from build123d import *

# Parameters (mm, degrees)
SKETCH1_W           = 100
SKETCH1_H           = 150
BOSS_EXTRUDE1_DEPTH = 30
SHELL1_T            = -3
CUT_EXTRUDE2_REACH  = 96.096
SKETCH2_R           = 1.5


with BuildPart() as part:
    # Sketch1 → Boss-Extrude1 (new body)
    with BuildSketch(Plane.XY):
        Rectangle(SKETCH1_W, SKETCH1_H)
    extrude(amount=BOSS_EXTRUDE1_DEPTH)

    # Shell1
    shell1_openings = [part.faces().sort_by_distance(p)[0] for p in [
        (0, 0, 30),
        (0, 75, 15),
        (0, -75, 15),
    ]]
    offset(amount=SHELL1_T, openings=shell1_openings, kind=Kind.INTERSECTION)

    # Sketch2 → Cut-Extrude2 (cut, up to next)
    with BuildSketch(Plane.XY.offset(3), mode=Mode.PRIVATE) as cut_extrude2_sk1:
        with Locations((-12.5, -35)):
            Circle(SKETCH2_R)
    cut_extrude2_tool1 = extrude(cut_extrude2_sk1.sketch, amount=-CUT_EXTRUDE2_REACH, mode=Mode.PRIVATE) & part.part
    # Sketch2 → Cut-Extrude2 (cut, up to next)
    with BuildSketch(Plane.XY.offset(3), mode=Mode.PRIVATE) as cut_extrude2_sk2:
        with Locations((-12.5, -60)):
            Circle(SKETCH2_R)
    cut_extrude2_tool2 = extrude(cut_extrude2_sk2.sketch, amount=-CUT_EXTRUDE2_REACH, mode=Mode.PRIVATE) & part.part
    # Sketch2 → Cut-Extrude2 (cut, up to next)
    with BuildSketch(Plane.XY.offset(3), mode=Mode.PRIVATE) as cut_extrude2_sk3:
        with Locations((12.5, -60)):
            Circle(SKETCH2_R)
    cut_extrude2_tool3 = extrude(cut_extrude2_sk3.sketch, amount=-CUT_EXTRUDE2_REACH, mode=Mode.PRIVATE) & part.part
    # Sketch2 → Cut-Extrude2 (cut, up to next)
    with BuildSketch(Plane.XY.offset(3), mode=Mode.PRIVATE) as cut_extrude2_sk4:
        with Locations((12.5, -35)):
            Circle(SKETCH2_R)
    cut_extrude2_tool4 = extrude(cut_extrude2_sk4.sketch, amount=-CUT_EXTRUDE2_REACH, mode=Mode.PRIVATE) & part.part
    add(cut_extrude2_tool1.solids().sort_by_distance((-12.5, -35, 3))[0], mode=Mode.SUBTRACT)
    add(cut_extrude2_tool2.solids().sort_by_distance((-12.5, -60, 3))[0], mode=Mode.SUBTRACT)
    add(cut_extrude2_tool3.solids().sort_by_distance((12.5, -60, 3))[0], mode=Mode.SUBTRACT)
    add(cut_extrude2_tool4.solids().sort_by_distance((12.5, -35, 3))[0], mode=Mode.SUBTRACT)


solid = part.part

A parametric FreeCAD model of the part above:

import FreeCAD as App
import Part
import Sketcher


def faces_at(feature, points):
    """Names of the faces that lie closest to the given points."""
    faces = feature.Shape.Faces
    near = lambda p: min(range(len(faces)), key=lambda i: faces[i].distToShape(Part.Vertex(*p))[0])
    return sorted({f"Face{near(p) + 1}" for p in points})


def add_polygon(sketch, points):
    """Adds a closed chain of lines whose ends are joined by coincident constraints."""
    first, n = sketch.GeometryCount, len(points)
    for a, b in zip(points, points[1:] + points[:1]):
        sketch.addGeometry(Part.LineSegment(App.Vector(*a, 0), App.Vector(*b, 0)), False)
    for i in range(n):
        sketch.addConstraint(Sketcher.Constraint("Coincident", first + i, 2, first + (i + 1) % n, 1))

doc = App.newDocument("Part")
body = doc.addObject("PartDesign::Body", "Body")

sketch1 = body.newObject("Sketcher::SketchObject", "Sketch")
sketch1.AttachmentSupport = (doc.getObject("XY_Plane"), [""])
sketch1.MapMode = "FlatFace"
add_polygon(sketch1, [(-50, 75), (-50, -75), (50, -75), (50, 75)])
sketch1.addConstraint([
    Sketcher.Constraint("Vertical", 0),
    Sketcher.Constraint("Horizontal", 1),
    Sketcher.Constraint("Vertical", 2),
    Sketcher.Constraint("Horizontal", 3),
    Sketcher.Constraint("Symmetric", 0, 2, 2, 2, -1, 1),
    Sketcher.Constraint("DistanceX", 1, 1, 1, 2, 100.0),
    Sketcher.Constraint("DistanceY", 0, 2, 0, 1, 150.0),
])
pad1 = body.newObject("PartDesign::Pad", "Pad")
pad1.Profile = sketch1
pad1.Length = 30
doc.recompute()

thickness = body.newObject("PartDesign::Thickness", "Thickness")
thickness.Base = (pad1, faces_at(pad1, [(0, 0, 30), (0, 75, 15), (0, -75, 15)]))
thickness.Value = 3
thickness.Reversed = True
thickness.Join = "Intersection"

sketch2 = body.newObject("Sketcher::SketchObject", "Sketch001")
sketch2.AttachmentSupport = (doc.getObject("XY_Plane"), [""])
sketch2.MapMode = "FlatFace"
sketch2.AttachmentOffset = App.Placement(App.Vector(0, 0, 3), App.Rotation())
sketch2.addGeometry(Part.Circle(App.Vector(-12.5, -35, 0), App.Vector(0, 0, 1), 1.5), False)
sketch2.addConstraint([
    Sketcher.Constraint("Diameter", 0, 3.0),
    Sketcher.Constraint("DistanceY", 0, 3, -1, 1, 35.0),
    Sketcher.Constraint("DistanceX", 0, 3, -1, 1, 12.5),
])
pocket1 = body.newObject("PartDesign::Pocket", "Pocket")
pocket1.Profile = sketch2
pocket1.Type = "UpToFirst"

sketch3 = body.newObject("Sketcher::SketchObject", "Sketch002")
sketch3.AttachmentSupport = (doc.getObject("XY_Plane"), [""])
sketch3.MapMode = "FlatFace"
sketch3.AttachmentOffset = App.Placement(App.Vector(0, 0, 3), App.Rotation())
sketch3.addGeometry(Part.Circle(App.Vector(-12.5, -60, 0), App.Vector(0, 0, 1), 1.5), False)
sketch3.addConstraint([
    Sketcher.Constraint("Diameter", 0, 3.0),
    Sketcher.Constraint("DistanceY", 0, 3, -1, 1, 60.0),
    Sketcher.Constraint("DistanceX", 0, 3, -1, 1, 12.5),
])
pocket2 = body.newObject("PartDesign::Pocket", "Pocket001")
pocket2.Profile = sketch3
pocket2.Type = "UpToFirst"

sketch4 = body.newObject("Sketcher::SketchObject", "Sketch003")
sketch4.AttachmentSupport = (doc.getObject("XY_Plane"), [""])
sketch4.MapMode = "FlatFace"
sketch4.AttachmentOffset = App.Placement(App.Vector(0, 0, 3), App.Rotation())
sketch4.addGeometry(Part.Circle(App.Vector(12.5, -60, 0), App.Vector(0, 0, 1), 1.5), False)
sketch4.addConstraint([
    Sketcher.Constraint("Diameter", 0, 3.0),
    Sketcher.Constraint("DistanceY", 0, 3, -1, 1, 60.0),
    Sketcher.Constraint("DistanceX", -1, 1, 0, 3, 12.5),
])
pocket3 = body.newObject("PartDesign::Pocket", "Pocket002")
pocket3.Profile = sketch4
pocket3.Type = "UpToFirst"

sketch5 = body.newObject("Sketcher::SketchObject", "Sketch004")
sketch5.AttachmentSupport = (doc.getObject("XY_Plane"), [""])
sketch5.MapMode = "FlatFace"
sketch5.AttachmentOffset = App.Placement(App.Vector(0, 0, 3), App.Rotation())
sketch5.addGeometry(Part.Circle(App.Vector(12.5, -35, 0), App.Vector(0, 0, 1), 1.5), False)
sketch5.addConstraint([
    Sketcher.Constraint("Diameter", 0, 3.0),
    Sketcher.Constraint("DistanceY", 0, 3, -1, 1, 35.0),
    Sketcher.Constraint("DistanceX", -1, 1, 0, 3, 12.5),
])
pocket4 = body.newObject("PartDesign::Pocket", "Pocket003")
pocket4.Profile = sketch5
pocket4.Type = "UpToFirst"

doc.recompute()
